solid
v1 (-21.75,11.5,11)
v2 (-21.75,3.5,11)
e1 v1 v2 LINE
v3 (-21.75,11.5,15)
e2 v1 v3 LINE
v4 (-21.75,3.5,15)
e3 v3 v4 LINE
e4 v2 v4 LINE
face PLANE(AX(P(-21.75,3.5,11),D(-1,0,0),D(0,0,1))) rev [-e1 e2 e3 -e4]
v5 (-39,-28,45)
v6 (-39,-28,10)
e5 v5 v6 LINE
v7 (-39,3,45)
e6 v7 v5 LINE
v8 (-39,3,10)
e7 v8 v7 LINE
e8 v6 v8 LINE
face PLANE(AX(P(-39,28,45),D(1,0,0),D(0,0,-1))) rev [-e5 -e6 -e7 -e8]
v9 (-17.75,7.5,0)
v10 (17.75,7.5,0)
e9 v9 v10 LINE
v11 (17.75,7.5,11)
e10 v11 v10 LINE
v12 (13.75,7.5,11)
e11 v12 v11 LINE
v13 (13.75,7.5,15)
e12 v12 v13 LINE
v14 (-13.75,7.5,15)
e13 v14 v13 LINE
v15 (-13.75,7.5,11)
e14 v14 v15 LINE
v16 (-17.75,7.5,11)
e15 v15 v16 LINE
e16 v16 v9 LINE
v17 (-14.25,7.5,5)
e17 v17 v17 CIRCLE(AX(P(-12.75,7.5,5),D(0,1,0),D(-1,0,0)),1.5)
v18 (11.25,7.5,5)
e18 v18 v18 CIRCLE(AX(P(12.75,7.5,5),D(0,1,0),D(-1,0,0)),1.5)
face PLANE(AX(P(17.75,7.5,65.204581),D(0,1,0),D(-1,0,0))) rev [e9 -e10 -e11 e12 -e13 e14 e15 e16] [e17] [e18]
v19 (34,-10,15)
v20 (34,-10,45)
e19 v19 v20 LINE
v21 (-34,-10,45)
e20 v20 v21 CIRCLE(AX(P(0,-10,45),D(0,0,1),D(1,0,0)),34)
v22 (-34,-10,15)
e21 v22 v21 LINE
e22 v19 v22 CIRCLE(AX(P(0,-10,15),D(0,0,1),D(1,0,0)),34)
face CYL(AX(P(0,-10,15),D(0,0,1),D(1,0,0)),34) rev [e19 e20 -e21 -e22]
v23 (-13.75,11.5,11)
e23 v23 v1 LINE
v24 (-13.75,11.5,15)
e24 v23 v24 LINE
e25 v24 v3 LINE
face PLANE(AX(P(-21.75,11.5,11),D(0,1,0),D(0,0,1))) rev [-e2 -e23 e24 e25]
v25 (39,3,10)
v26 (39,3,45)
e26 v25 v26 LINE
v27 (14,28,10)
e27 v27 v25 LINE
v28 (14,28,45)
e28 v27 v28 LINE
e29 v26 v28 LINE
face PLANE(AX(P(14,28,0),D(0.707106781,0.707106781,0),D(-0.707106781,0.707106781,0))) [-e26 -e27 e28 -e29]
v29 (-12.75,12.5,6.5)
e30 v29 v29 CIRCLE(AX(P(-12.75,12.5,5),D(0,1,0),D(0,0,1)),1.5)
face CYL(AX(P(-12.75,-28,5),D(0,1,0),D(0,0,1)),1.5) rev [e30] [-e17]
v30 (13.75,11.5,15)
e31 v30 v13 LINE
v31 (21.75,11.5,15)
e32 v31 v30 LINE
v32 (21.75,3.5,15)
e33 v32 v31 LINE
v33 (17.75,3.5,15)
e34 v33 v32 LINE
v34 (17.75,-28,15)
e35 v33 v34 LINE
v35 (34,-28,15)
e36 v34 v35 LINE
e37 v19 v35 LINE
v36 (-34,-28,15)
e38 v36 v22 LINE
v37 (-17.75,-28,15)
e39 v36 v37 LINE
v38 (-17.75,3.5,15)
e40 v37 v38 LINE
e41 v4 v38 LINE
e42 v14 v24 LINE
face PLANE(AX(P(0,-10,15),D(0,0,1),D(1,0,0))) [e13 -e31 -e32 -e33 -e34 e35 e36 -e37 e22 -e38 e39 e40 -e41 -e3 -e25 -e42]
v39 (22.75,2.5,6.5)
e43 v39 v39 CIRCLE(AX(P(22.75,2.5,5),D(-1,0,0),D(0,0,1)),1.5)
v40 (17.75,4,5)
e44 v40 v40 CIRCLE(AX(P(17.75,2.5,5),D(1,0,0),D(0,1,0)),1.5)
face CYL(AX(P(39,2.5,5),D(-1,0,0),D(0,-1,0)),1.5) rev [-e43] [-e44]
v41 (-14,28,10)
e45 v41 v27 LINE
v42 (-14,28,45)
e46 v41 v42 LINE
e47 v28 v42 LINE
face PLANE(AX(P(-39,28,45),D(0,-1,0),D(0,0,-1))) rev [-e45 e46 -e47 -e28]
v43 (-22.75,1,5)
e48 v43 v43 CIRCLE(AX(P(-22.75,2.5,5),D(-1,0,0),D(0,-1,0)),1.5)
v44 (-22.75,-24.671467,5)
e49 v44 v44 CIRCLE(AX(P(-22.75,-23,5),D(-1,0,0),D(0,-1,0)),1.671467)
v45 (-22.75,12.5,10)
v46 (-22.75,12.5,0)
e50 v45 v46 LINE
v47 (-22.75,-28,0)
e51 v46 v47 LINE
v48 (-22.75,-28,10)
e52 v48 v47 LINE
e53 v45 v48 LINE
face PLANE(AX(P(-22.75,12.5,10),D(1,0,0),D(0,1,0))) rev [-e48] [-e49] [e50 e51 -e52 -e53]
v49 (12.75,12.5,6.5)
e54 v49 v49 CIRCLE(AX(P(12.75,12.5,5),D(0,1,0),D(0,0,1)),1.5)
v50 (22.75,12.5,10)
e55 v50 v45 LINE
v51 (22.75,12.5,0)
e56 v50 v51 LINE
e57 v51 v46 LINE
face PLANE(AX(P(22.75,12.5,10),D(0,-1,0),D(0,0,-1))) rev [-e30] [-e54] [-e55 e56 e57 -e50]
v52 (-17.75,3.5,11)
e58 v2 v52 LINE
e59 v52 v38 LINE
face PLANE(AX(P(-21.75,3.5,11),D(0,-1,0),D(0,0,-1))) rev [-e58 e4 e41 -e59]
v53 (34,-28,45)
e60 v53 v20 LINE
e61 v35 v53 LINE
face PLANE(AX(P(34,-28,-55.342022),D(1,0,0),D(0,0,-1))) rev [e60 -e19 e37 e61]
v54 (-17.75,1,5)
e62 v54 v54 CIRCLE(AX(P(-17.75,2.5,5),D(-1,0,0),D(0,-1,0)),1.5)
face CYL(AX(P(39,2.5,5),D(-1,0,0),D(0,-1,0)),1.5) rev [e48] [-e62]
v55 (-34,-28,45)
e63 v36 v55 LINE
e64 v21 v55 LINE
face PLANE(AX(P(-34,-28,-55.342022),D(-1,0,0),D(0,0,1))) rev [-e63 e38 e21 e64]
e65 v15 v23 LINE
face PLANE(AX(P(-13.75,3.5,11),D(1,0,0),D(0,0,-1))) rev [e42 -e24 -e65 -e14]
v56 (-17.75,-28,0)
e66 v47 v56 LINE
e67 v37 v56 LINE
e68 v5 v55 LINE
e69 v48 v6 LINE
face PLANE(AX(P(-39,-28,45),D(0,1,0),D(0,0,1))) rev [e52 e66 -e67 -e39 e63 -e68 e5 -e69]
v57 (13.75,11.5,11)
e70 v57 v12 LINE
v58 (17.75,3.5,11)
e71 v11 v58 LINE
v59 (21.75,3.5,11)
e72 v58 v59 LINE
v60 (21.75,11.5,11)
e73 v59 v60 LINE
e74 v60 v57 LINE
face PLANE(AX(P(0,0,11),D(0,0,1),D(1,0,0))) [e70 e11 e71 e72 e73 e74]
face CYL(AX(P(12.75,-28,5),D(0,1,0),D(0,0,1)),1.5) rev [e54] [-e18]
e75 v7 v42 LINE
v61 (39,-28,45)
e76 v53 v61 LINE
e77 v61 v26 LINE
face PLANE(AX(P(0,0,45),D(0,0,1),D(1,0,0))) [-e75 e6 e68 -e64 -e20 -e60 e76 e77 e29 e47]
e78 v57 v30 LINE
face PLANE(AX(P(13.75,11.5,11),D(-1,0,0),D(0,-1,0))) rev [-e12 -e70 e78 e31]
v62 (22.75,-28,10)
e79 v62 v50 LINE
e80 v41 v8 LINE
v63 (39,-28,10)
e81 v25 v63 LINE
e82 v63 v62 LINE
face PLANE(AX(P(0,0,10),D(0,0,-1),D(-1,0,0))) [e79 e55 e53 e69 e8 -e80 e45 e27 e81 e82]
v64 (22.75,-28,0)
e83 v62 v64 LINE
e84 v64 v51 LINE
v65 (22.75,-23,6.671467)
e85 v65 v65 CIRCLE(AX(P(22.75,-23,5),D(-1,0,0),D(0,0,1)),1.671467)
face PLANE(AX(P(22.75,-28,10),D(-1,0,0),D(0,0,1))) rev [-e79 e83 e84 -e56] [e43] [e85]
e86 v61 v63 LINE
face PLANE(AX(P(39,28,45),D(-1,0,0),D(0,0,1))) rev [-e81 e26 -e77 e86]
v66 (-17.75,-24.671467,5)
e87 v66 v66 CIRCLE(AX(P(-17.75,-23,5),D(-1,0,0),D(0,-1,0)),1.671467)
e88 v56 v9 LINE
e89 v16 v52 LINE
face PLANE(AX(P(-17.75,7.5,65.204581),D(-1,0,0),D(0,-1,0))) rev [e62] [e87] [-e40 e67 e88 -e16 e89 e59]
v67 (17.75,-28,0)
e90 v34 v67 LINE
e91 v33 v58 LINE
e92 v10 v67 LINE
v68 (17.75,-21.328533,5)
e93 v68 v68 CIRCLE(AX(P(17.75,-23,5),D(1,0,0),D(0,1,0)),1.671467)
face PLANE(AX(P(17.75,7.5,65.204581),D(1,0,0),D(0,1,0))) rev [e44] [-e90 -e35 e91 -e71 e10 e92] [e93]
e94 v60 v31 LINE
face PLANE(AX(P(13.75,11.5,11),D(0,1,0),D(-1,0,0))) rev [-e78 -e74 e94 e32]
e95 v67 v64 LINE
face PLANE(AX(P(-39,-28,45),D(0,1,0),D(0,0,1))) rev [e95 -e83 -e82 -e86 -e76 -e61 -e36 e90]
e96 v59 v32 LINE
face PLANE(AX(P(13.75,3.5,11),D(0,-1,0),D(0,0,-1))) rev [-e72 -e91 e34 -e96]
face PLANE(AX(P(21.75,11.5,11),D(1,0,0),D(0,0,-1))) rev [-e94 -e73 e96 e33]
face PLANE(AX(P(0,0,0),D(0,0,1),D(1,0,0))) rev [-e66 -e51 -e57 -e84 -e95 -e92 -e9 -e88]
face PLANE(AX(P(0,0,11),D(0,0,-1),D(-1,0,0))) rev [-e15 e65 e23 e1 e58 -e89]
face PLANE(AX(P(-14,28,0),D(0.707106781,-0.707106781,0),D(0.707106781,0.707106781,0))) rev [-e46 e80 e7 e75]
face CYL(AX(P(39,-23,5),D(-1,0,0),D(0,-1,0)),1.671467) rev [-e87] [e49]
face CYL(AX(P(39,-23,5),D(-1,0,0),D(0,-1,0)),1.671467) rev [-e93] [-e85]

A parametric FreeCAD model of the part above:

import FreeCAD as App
import Part
import Sketcher

V = App.Vector
Q = App.Units.Quantity

doc = App.newDocument("Part")
body = doc.addObject("PartDesign::Body", "Body")

# Sketch on XY plane
sketch1 = body.newObject("Sketcher::SketchObject", "Sketch")
sketch1.AttachmentSupport = (doc.getObject("XY_Plane"), [""])
sketch1.MapMode = "FlatFace"
sketch1.addGeometry(Part.LineSegment(V(-39, 28, 0), V(-39, -28, 0)), False)
sketch1.addGeometry(Part.LineSegment(V(-39, -28, 0), V(39, -28, 0)), False)
sketch1.addGeometry(Part.LineSegment(V(39, -28, 0), V(39, 28, 0)), False)
sketch1.addGeometry(Part.LineSegment(V(39, 28, 0), V(-39, 28, 0)), False)
sketch1.addConstraint(Sketcher.Constraint("Coincident", 0, 2, 1, 1))
sketch1.addConstraint(Sketcher.Constraint("Coincident", 1, 2, 2, 1))
sketch1.addConstraint(Sketcher.Constraint("Coincident", 2, 2, 3, 1))
sketch1.addConstraint(Sketcher.Constraint("Coincident", 3, 2, 0, 1))
sketch1.addConstraint(Sketcher.Constraint("Vertical", 0))
sketch1.addConstraint(Sketcher.Constraint("Horizontal", 1))
sketch1.addConstraint(Sketcher.Constraint("Vertical", 2))
sketch1.addConstraint(Sketcher.Constraint("Horizontal", 3))
sketch1.addConstraint(Sketcher.Constraint("Symmetric", 0, 2, 2, 2, -1, 1))
sketch1.addConstraint(Sketcher.Constraint("DistanceX", 1, 1, 1, 2, Q("78 mm")))
sketch1.addConstraint(Sketcher.Constraint("DistanceY", 0, 2, 0, 1, Q("56 mm")))
pad1 = body.newObject("PartDesign::Pad", "Pad")
pad1.Profile = sketch1
pad1.Length = 45

# Sketch on XY plane
sketch2 = body.newObject("Sketcher::SketchObject", "Sketch001")
sketch2.AttachmentSupport = (doc.getObject("XY_Plane"), [""])
sketch2.MapMode = "FlatFace"
sketch2.AttachmentOffset = App.Placement(V(0, 0, 45), App.Rotation())
sketch2.addGeometry(Part.Circle(V(0, -10, 0), V(0, 0, 1), 34), False)
sketch2.addConstraint(Sketcher.Constraint("PointOnObject", 0, 3, -2))
sketch2.addConstraint(Sketcher.Constraint("Diameter", 0, Q("68 mm")))
sketch2.addConstraint(Sketcher.Constraint("DistanceY", 0, 3, -1, 1, Q("10 mm")))
pocket1 = body.newObject("PartDesign::Pocket", "Pocket")
pocket1.Profile = sketch2
pocket1.Length = 30

# Sketch on XY plane
sketch3 = body.newObject("Sketcher::SketchObject", "Sketch002")
sketch3.AttachmentSupport = (doc.getObject("XY_Plane"), [""])
sketch3.MapMode = "FlatFace"
sketch3.addGeometry(Part.LineSegment(V(18, 8, 0), V(18, -28, 0)), False)
sketch3.addGeometry(Part.LineSegment(V(18, -28, 0), V(-18, -28, 0)), False)
sketch3.addGeometry(Part.LineSegment(V(-18, -28, 0), V(-18, 8, 0)), False)
sketch3.addGeometry(Part.LineSegment(V(-18, 8, 0), V(18, 8, 0)), False)
sketch3.addConstraint(Sketcher.Constraint("Coincident", 0, 2, 1, 1))
sketch3.addConstraint(Sketcher.Constraint("Coincident", 1, 2, 2, 1))
sketch3.addConstraint(Sketcher.Constraint("Coincident", 2, 2, 3, 1))
sketch3.addConstraint(Sketcher.Constraint("Coincident", 3, 2, 0, 1))
sketch3.addConstraint(Sketcher.Constraint("Vertical", 0))
sketch3.addConstraint(Sketcher.Constraint("Horizontal", 1))
sketch3.addConstraint(Sketcher.Constraint("Vertical", 2))
sketch3.addConstraint(Sketcher.Constraint("Horizontal", 3))
sketch3.addConstraint(Sketcher.Constraint("Equal", 3, 0))
sketch3.addConstraint(Sketcher.Constraint("DistanceX", 1, 2, 1, 1, Q("35.5 mm")))
sketch3.addConstraint(Sketcher.Constraint("DistanceY", 0, 2, -1, 1, Q("28 mm")))
sketch3.addConstraint(Sketcher.Constraint("DistanceX", -1, 1, 0, 2, Q("17.75 mm")))
pocket2 = body.newObject("PartDesign::Pocket", "Pocket001")
pocket2.Profile = sketch3
pocket2.Length = 15
pocket2.Reversed = True

# Sketch on XY plane
sketch4 = body.newObject("Sketcher::SketchObject", "Sketch003")
sketch4.AttachmentSupport = (doc.getObject("XY_Plane"), [""])
sketch4.MapMode = "FlatFace"
sketch4.addGeometry(Part.LineSegment(V(23, -28, 0), V(23, 12, 0)), False)
sketch4.addGeometry(Part.LineSegment(V(23, 12, 0), V(-23, 12, 0)), False)
sketch4.addGeometry(Part.LineSegment(V(-23, 12, 0), V(-23, -28, 0)), False)
sketch4.addGeometry(Part.LineSegment(V(-23, -28, 0), V(-39, -28, 0)), False)
sketch4.addGeometry(Part.LineSegment(V(-39, -28, 0), V(-39, 28, 0)), False)
sketch4.addGeometry(Part.LineSegment(V(-39, 28, 0), V(39, 28, 0)), False)
sketch4.addGeometry(Part.LineSegment(V(39, 28, 0), V(39, -28, 0)), False)
sketch4.addGeometry(Part.LineSegment(V(39, -28, 0), V(23, -28, 0)), False)
sketch4.addConstraint(Sketcher.Constraint("Coincident", 0, 2, 1, 1))
sketch4.addConstraint(Sketcher.Constraint("Coincident", 1, 2, 2, 1))
sketch4.addConstraint(Sketcher.Constraint("Coincident", 2, 2, 3, 1))
sketch4.addConstraint(Sketcher.Constraint("Coincident", 3, 2, 4, 1))
sketch4.addConstraint(Sketcher.Constraint("Coincident", 4, 2, 5, 1))
sketch4.addConstraint(Sketcher.Constraint("Coincident", 5, 2, 6, 1))
sketch4.addConstraint(Sketcher.Constraint("Coincident", 6, 2, 7, 1))
sketch4.addConstraint(Sketcher.Constraint("Coincident", 7, 2, 0, 1))
sketch4.addConstraint(Sketcher.Constraint("Vertical", 0))
sketch4.addConstraint(Sketcher.Constraint("Horizontal", 1))
sketch4.addConstraint(Sketcher.Constraint("Vertical", 2))
sketch4.addConstraint(Sketcher.Constraint("Horizontal", 3))
sketch4.addConstraint(Sketcher.Constraint("Vertical", 4))
sketch4.addConstraint(Sketcher.Constraint("Horizontal", 5))
sketch4.addConstraint(Sketcher.Constraint("Vertical", 6))
sketch4.addConstraint(Sketcher.Constraint("Horizontal", 7))
sketch4.addConstraint(Sketcher.Constraint("Symmetric", 3, 2, 5, 2, -1, 1))
sketch4.addConstraint(Sketcher.Constraint("Symmetric", 2, 2, 7, 2, -2))
sketch4.addConstraint(Sketcher.Constraint("DistanceX", 5, 1, 5, 2, Q("78 mm")))
sketch4.addConstraint(Sketcher.Constraint("DistanceY", 4, 1, 4, 2, Q("56 mm")))
sketch4.addConstraint(Sketcher.Constraint("DistanceX", 1, 2, 1, 1, Q("45.5 mm")))
sketch4.addConstraint(Sketcher.Constraint("DistanceY", 0, 1, 0, 2, Q("40.5 mm")))
pocket3 = body.newObject("PartDesign::Pocket", "Pocket002")
pocket3.Profile = sketch4
pocket3.Length = 10
pocket3.Reversed = True

# Sketch on XY plane
sketch5 = body.newObject("Sketcher::SketchObject", "Sketch004")
sketch5.AttachmentSupport = (doc.getObject("XY_Plane"), [""])
sketch5.MapMode = "FlatFace"
sketch5.AttachmentOffset = App.Placement(V(0, 0, 45), App.Rotation())
sketch5.addGeometry(Part.LineSegment(V(-34, -10, 0), V(-34, -28, 0)), False)
sketch5.addGeometry(Part.LineSegment(V(-34, -28, 0), V(34, -28, 0)), False)
sketch5.addGeometry(Part.LineSegment(V(34, -28, 0), V(34, -10, 0)), False)
sketch5.addGeometry(Part.LineSegment(V(34, -10, 0), V(-34, -10, 0)), False)
sketch5.addConstraint(Sketcher.Constraint("Coincident", 0, 2, 1, 1))
sketch5.addConstraint(Sketcher.Constraint("Coincident", 1, 2, 2, 1))
sketch5.addConstraint(Sketcher.Constraint("Coincident", 2, 2, 3, 1))
sketch5.addConstraint(Sketcher.Constraint("Coincident", 3, 2, 0, 1))
sketch5.addConstraint(Sketcher.Constraint("Vertical", 0))
sketch5.addConstraint(Sketcher.Constraint("Horizontal", 1))
sketch5.addConstraint(Sketcher.Constraint("Vertical", 2))
sketch5.addConstraint(Sketcher.Constraint("Horizontal", 3))
sketch5.addConstraint(Sketcher.Constraint("DistanceX", 1, 1, 1, 2, Q("68 mm")))
sketch5.addConstraint(Sketcher.Constraint("DistanceY", 0, 2, 0, 1, Q("18 mm")))
sketch5.addConstraint(Sketcher.Constraint("DistanceX", 0, 2, -1, 1, Q("34 mm")))
sketch5.addConstraint(Sketcher.Constraint("DistanceY", 0, 2, -1, 1, Q("28 mm")))
pocket4 = body.newObject("PartDesign::Pocket", "Pocket003")
pocket4.Profile = sketch5
pocket4.Length = 30

# Sketch on YZ plane
sketch6 = body.newObject("Sketcher::SketchObject", "Sketch005")
sketch6.AttachmentSupport = (doc.getObject("YZ_Plane"), [""])
sketch6.MapMode = "FlatFace"
sketch6.AttachmentOffset = App.Placement(V(0, 0, -22.75), App.Rotation())
sketch6.addGeometry(Part.Circle(V(-23, 5, 0), V(0, 0, 1), 1.7), False)
sketch6.addConstraint(Sketcher.Constraint("DistanceX", 0, 3, -1, 1, Q("23 mm")))
sketch6.addConstraint(Sketcher.Constraint("DistanceY", -1, 1, 0, 3, Q("5 mm")))
sketch6.addConstraint(Sketcher.Constraint("Diameter", 0, Q("3.342933 mm")))
pocket5 = body.newObject("PartDesign::Pocket", "Pocket004")
pocket5.Profile = sketch6
pocket5.Type = "ThroughAll"
pocket5.Reversed = True

# Sketch on YZ plane
sketch7 = body.newObject("Sketcher::SketchObject", "Sketch006")
sketch7.AttachmentSupport = (doc.getObject("YZ_Plane"), [""])
sketch7.MapMode = "FlatFace"
sketch7.AttachmentOffset = App.Placement(V(0, 0, -22.75), App.Rotation())
sketch7.addGeometry(Part.Circle(V(2.5, 5, 0), V(0, 0, 1), 1.5), False)
sketch7.addConstraint(Sketcher.Constraint("Diameter", 0, Q("3 mm")))
sketch7.addConstraint(Sketcher.Constraint("DistanceY", -1, 1, 0, 3, Q("5 mm")))
sketch7.addConstraint(Sketcher.Constraint("DistanceX", -1, 1, 0, 3, Q("2.5 mm")))
pocket6 = body.newObject("PartDesign::Pocket", "Pocket005")
pocket6.Profile = sketch7
pocket6.Type = "ThroughAll"
pocket6.Reversed = True

# Sketch on XY plane
sketch8 = body.newObject("Sketcher::SketchObject", "Sketch007")
sketch8.AttachmentSupport = (doc.getObject("XY_Plane"), [""])
sketch8.MapMode = "FlatFace"
sketch8.AttachmentOffset = App.Placement(V(0, 0, 15), App.Rotation())
sketch8.addGeometry(Part.LineSegment(V(-22, 12, 0), V(-22, 4, 0)), False)
sketch8.addGeometry(Part.LineSegment(V(-22, 4, 0), V(-14, 4, 0)), False)
sketch8.addGeometry(Part.LineSegment(V(-14, 4, 0), V(-14, 12, 0)), False)
sketch8.addGeometry(Part.LineSegment(V(-14, 12, 0), V(-22, 12, 0)), False)
sketch8.addConstraint(Sketcher.Constraint("Coincident", 0, 2, 1, 1))
sketch8.addConstraint(Sketcher.Constraint("Coincident", 1, 2, 2, 1))
sketch8.addConstraint(Sketcher.Constraint("Coincident", 2, 2, 3, 1))
sketch8.addConstraint(Sketcher.Constraint("Coincident", 3, 2, 0, 1))
sketch8.addConstraint(Sketcher.Constraint("Vertical", 0))
sketch8.addConstraint(Sketcher.Constraint("Horizontal", 1))
sketch8.addConstraint(Sketcher.Constraint("Vertical", 2))
sketch8.addConstraint(Sketcher.Constraint("Horizontal", 3))
sketch8.addConstraint(Sketcher.Constraint("Equal", 3, 0))
sketch8.addConstraint(Sketcher.Constraint("DistanceX", 1, 1, 1, 2, Q("8 mm")))
sketch8.addConstraint(Sketcher.Constraint("DistanceY", -1, 1, 0, 2, Q("3.5 mm")))
sketch8.addConstraint(Sketcher.Constraint("DistanceX", 0, 2, -1, 1, Q("21.75 mm")))
pocket7 = body.newObject("PartDesign::Pocket", "Pocket006")
pocket7.Profile = sketch8
pocket7.Length = 4

# Sketch on XZ plane
sketch9 = body.newObject("Sketcher::SketchObject", "Sketch008")
sketch9.AttachmentSupport = (doc.getObject("XZ_Plane"), [""])
sketch9.MapMode = "FlatFace"
sketch9.AttachmentOffset = App.Placement(V(0, 0, -12.5), App.Rotation())
sketch9.addGeometry(Part.Circle(V(-12.8, 5, 0), V(0, 0, 1), 1.5), False)
sketch9.addConstraint(Sketcher.Constraint("Diameter", 0, Q("3 mm")))
sketch9.addConstraint(Sketcher.Constraint("DistanceY", -1, 1, 0, 3, Q("5 mm")))
sketch9.addConstraint(Sketcher.Constraint("DistanceX", 0, 3, -1, 1, Q("12.75 mm")))
pocket8 = body.newObject("PartDesign::Pocket", "Pocket007")
pocket8.Profile = sketch9
pocket8.Type = "ThroughAll"
pocket8.Reversed = True

# Sketch on XZ plane
sketch10 = body.newObject("Sketcher::SketchObject", "Sketch009")
sketch10.AttachmentSupport = (doc.getObject("XZ_Plane"), [""])
sketch10.MapMode = "FlatFace"
sketch10.AttachmentOffset = App.Placement(V(0, 0, -12.5), App.Rotation())
sketch10.addGeometry(Part.Circle(V(12.8, 5, 0), V(0, 0, 1), 1.5), False)
sketch10.addConstraint(Sketcher.Constraint("Diameter", 0, Q("3 mm")))
sketch10.addConstraint(Sketcher.Constraint("DistanceY", -1, 1, 0, 3, Q("5 mm")))
sketch10.addConstraint(Sketcher.Constraint("DistanceX", -1, 1, 0, 3, Q("12.75 mm")))
pocket9 = body.newObject("PartDesign::Pocket", "Pocket008")
pocket9.Profile = sketch10
pocket9.Type = "ThroughAll"
pocket9.Reversed = True

# Sketch on XY plane
sketch11 = body.newObject("Sketcher::SketchObject", "Sketch010")
sketch11.AttachmentSupport = (doc.getObject("XY_Plane"), [""])
sketch11.MapMode = "FlatFace"
sketch11.AttachmentOffset = App.Placement(V(0, 0, 15), App.Rotation())
sketch11.addGeometry(Part.LineSegment(V(14, 12, 0), V(14, 4, 0)), False)
sketch11.addGeometry(Part.LineSegment(V(14, 4, 0), V(22, 4, 0)), False)
sketch11.addGeometry(Part.LineSegment(V(22, 4, 0), V(22, 12, 0)), False)
sketch11.addGeometry(Part.LineSegment(V(22, 12, 0), V(14, 12, 0)), False)
sketch11.addConstraint(Sketcher.Constraint("Coincident", 0, 2, 1, 1))
sketch11.addConstraint(Sketcher.Constraint("Coincident", 1, 2, 2, 1))
sketch11.addConstraint(Sketcher.Constraint("Coincident", 2, 2, 3, 1))
sketch11.addConstraint(Sketcher.Constraint("Coincident", 3, 2, 0, 1))
sketch11.addConstraint(Sketcher.Constraint("Vertical", 0))
sketch11.addConstraint(Sketcher.Constraint("Horizontal", 1))
sketch11.addConstraint(Sketcher.Constraint("Vertical", 2))
sketch11.addConstraint(Sketcher.Constraint("Horizontal", 3))
sketch11.addConstraint(Sketcher.Constraint("Equal", 3, 0))
sketch11.addConstraint(Sketcher.Constraint("DistanceX", 1, 1, 1, 2, Q("8 mm")))
sketch11.addConstraint(Sketcher.Constraint("DistanceY", -1, 1, 0, 2, Q("3.5 mm")))
sketch11.addConstraint(Sketcher.Constraint("DistanceX", -1, 1, 0, 2, Q("13.75 mm")))
pocket10 = body.newObject("PartDesign::Pocket", "Pocket009")
pocket10.Profile = sketch11
pocket10.Length = 4

# Sketch on XY plane
sketch12 = body.newObject("Sketcher::SketchObject", "Sketch011")
sketch12.AttachmentSupport = (doc.getObject("XY_Plane"), [""])
sketch12.MapMode = "FlatFace"
sketch12.AttachmentOffset = App.Placement(V(0, 0, 45), App.Rotation())
sketch12.addGeometry(Part.LineSegment(V(-39, 28, 0), V(-39, 3, 0)), False)
sketch12.addGeometry(Part.LineSegment(V(-39, 3, 0), V(-14, 28, 0)), False)
sketch12.addGeometry(Part.LineSegment(V(-14, 28, 0), V(-39, 28, 0)), False)
sketch12.addConstraint(Sketcher.Constraint("Coincident", 0, 2, 1, 1))
sketch12.addConstraint(Sketcher.Constraint("Coincident", 1, 2, 2, 1))
sketch12.addConstraint(Sketcher.Constraint("Coincident", 2, 2, 0, 1))
sketch12.addConstraint(Sketcher.Constraint("Vertical", 0))
sketch12.addConstraint(Sketcher.Constraint("Horizontal", 2))
sketch12.addConstraint(Sketcher.Constraint("Equal", 2, 0))
sketch12.addConstraint(Sketcher.Constraint("DistanceX", 2, 2, 2, 1, Q("25 mm")))
sketch12.addConstraint(Sketcher.Constraint("DistanceX", 0, 2, -1, 1, Q("39 mm")))
sketch12.addConstraint(Sketcher.Constraint("DistanceY", -1, 1, 0, 2, Q("3 mm")))
pocket11 = body.newObject("PartDesign::Pocket", "Pocket010")
pocket11.Profile = sketch12
pocket11.Type = "ThroughAll"
doc.recompute()

mirrored = body.newObject("PartDesign::Mirrored", "Mirrored")
mirrored.Originals = [pocket11]
mirrored.MirrorPlane = (doc.getObject("YZ_Plane"), [""])
body.Tip = mirrored

doc.recompute()
